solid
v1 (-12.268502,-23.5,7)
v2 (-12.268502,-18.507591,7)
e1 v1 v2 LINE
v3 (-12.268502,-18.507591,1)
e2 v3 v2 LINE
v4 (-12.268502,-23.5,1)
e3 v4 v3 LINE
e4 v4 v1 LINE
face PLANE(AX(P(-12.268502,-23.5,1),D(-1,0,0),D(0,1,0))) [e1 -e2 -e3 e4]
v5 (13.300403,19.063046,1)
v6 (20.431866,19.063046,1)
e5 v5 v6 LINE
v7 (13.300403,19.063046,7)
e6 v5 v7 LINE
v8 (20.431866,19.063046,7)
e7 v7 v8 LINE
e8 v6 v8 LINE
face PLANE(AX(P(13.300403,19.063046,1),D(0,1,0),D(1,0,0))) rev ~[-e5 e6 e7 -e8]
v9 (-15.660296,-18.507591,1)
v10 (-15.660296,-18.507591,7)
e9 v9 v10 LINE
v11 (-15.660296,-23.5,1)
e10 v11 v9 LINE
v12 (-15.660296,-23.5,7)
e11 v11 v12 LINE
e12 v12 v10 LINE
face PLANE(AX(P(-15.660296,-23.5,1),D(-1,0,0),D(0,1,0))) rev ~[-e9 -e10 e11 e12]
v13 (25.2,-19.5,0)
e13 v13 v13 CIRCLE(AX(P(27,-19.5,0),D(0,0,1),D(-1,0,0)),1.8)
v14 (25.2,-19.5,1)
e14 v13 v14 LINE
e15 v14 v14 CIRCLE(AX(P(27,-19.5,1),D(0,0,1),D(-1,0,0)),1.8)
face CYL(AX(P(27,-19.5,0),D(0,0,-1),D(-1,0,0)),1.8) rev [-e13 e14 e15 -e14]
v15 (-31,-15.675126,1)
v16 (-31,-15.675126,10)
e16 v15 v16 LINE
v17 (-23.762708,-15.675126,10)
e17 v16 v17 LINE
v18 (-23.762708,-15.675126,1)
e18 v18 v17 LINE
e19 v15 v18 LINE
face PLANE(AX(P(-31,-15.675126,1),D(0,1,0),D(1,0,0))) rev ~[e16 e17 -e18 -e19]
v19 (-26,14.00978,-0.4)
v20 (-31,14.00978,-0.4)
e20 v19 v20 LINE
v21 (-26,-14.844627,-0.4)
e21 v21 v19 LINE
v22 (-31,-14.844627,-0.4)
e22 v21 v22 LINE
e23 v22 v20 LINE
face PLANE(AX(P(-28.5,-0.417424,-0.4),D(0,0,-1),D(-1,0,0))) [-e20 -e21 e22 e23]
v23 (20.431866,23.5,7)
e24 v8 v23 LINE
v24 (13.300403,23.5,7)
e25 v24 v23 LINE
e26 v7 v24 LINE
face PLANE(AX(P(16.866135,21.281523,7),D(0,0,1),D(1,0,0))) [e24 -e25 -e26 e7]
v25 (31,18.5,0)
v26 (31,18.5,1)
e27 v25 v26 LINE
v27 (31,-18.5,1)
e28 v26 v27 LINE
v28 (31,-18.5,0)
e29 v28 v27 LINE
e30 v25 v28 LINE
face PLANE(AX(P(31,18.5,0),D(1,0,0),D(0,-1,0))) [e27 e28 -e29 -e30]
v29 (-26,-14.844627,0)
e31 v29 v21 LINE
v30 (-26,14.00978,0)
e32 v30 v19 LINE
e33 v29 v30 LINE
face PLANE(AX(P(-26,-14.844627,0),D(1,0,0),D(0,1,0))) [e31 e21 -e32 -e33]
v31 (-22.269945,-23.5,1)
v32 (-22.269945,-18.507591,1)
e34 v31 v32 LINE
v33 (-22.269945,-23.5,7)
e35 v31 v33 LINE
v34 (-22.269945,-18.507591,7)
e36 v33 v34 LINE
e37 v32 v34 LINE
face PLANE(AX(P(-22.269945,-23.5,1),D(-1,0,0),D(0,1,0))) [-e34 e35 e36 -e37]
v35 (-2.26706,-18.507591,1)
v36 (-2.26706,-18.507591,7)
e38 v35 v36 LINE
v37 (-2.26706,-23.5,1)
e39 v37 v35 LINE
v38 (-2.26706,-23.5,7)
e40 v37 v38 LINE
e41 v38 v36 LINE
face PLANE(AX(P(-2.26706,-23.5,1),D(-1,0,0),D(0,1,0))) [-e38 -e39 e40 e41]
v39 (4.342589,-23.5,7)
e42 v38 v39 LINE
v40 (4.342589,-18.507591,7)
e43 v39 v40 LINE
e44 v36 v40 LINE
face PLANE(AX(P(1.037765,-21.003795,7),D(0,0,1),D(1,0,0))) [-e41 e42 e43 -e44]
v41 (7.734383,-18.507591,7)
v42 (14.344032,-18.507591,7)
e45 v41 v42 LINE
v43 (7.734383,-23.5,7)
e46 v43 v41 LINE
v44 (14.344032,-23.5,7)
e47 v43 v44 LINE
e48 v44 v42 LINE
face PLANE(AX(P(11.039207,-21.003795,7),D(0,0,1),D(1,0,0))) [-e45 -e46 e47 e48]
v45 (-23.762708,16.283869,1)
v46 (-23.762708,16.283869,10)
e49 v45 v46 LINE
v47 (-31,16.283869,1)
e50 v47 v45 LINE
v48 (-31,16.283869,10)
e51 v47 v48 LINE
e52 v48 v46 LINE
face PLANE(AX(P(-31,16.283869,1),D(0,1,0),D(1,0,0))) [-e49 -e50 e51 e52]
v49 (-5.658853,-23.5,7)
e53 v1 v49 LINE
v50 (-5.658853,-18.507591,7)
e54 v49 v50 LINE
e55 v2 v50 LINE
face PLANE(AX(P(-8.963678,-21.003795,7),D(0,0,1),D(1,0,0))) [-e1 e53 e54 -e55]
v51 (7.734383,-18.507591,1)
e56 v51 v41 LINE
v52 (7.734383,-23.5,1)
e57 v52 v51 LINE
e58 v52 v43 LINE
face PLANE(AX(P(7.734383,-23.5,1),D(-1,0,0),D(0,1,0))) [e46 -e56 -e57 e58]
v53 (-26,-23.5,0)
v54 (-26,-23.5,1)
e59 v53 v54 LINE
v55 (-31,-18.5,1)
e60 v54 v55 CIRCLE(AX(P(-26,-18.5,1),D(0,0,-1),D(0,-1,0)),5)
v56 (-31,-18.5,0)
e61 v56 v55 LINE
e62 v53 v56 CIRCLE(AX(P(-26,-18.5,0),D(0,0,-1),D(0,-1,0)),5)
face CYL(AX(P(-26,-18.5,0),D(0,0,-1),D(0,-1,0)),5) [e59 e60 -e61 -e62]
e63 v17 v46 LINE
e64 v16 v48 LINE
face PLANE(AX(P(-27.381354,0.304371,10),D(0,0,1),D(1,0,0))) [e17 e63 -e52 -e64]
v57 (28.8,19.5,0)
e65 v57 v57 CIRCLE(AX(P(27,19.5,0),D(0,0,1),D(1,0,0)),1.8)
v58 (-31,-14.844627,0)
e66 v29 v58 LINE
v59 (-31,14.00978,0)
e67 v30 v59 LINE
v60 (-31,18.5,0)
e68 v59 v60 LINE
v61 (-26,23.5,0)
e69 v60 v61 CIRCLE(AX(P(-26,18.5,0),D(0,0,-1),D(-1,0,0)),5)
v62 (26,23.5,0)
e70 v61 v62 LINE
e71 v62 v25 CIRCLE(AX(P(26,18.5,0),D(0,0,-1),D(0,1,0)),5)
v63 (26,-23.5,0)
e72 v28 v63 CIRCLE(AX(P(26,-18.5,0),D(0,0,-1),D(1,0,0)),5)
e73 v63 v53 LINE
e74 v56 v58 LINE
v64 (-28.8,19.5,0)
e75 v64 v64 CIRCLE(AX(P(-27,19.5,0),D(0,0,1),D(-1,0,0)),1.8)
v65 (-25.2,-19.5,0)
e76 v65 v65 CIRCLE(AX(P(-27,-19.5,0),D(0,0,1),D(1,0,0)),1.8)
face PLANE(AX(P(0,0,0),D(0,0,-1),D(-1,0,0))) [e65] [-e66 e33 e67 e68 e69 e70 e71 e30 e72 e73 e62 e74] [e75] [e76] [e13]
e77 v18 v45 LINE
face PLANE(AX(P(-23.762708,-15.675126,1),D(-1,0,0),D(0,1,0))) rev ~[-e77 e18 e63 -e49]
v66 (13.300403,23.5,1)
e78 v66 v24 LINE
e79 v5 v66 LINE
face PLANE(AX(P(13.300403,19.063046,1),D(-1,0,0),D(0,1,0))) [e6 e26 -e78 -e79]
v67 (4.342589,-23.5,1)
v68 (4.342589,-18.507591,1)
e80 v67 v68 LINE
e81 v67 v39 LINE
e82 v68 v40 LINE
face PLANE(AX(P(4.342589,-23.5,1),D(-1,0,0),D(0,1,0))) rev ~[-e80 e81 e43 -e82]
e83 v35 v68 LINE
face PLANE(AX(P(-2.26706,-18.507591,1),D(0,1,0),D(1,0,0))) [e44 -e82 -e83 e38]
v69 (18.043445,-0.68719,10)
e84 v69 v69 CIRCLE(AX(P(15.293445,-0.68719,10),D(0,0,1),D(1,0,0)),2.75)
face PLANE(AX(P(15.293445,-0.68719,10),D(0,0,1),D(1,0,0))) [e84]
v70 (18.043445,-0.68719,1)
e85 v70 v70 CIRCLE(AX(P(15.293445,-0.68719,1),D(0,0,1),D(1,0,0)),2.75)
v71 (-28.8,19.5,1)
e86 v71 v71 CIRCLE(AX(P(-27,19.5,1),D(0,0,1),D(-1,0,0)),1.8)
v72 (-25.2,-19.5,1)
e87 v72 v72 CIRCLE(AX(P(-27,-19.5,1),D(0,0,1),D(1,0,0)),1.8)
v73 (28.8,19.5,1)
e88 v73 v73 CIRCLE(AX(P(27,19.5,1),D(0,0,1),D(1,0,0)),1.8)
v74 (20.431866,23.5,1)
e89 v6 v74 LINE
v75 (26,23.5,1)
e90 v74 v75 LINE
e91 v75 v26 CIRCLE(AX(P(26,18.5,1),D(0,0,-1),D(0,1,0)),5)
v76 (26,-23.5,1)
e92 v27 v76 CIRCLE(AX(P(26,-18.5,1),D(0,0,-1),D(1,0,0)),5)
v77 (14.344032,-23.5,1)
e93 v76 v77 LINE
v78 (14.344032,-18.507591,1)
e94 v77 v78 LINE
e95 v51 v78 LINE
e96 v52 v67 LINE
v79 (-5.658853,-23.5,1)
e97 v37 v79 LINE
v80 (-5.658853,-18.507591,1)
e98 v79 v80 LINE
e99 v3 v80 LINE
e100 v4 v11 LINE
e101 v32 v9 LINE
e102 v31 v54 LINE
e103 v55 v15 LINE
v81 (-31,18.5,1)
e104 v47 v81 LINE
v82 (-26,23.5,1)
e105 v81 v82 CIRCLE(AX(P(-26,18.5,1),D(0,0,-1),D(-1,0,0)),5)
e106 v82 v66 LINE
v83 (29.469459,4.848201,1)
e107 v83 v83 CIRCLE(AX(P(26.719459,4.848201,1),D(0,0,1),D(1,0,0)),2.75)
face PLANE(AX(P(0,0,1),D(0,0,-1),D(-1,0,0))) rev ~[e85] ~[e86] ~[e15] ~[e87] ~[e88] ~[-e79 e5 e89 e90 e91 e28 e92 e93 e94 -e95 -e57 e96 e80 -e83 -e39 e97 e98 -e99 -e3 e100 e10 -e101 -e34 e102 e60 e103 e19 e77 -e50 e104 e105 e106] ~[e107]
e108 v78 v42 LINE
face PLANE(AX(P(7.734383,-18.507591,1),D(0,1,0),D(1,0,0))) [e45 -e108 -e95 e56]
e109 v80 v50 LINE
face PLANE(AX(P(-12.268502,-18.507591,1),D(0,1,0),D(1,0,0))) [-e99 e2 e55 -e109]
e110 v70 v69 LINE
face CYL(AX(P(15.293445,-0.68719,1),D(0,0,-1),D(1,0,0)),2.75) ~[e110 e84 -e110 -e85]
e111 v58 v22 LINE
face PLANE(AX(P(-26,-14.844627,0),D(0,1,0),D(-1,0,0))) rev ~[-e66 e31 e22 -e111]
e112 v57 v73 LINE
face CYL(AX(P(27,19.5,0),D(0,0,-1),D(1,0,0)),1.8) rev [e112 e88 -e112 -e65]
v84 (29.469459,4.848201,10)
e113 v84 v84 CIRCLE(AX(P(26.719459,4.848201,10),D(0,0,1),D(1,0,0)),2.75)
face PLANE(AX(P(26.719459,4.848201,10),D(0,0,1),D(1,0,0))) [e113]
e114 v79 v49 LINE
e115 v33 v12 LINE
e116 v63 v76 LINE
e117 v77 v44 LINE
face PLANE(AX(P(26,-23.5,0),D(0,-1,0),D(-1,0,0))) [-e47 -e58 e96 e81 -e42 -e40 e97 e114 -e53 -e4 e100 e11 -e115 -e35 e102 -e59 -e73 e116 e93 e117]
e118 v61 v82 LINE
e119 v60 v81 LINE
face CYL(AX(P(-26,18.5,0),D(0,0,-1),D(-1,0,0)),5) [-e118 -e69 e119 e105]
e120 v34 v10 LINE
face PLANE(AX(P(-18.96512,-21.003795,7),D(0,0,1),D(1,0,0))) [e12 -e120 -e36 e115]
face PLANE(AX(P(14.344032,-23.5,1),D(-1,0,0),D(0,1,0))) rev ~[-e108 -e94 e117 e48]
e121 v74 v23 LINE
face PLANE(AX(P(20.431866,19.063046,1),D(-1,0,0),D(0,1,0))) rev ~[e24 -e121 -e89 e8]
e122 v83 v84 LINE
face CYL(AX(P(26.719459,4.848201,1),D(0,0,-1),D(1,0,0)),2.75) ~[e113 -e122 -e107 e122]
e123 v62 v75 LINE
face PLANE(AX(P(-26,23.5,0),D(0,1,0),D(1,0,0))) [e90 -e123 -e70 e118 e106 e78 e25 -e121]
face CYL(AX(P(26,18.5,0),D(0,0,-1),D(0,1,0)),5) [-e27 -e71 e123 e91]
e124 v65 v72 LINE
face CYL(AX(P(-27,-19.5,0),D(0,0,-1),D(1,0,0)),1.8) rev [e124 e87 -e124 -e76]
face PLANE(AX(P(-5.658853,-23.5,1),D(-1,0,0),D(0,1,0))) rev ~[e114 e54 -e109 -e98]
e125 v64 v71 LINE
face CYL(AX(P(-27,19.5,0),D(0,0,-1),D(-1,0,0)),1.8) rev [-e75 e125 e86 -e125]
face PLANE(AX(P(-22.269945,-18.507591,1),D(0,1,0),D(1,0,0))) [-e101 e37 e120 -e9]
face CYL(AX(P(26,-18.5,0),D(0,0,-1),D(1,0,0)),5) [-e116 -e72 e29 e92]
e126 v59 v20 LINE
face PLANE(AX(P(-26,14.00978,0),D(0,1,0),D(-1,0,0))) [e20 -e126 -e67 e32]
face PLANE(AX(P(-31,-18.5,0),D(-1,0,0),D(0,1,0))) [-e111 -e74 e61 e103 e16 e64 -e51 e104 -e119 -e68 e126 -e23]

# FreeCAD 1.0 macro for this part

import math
import FreeCAD as App
import Part
import Sketcher

V = App.Vector
Q = App.Units.Quantity


def add_polygon(sketch, points):
    """Adds a closed chain of lines whose ends are joined by coincident constraints."""
    first, n = sketch.GeometryCount, len(points)
    for a, b in zip(points, points[1:] + points[:1]):
        sketch.addGeometry(Part.LineSegment(App.Vector(*a, 0), App.Vector(*b, 0)), False)
    for i in range(n):
        sketch.addConstraint(Sketcher.Constraint("Coincident", first + i, 2, first + (i + 1) % n, 1))

doc = App.newDocument("Part")
body = doc.addObject("PartDesign::Body", "Body")

# Sketch on XY plane
sketch1 = body.newObject("Sketcher::SketchObject", "Sketch")
sketch1.AttachmentSupport = (doc.getObject("XY_Plane"), [""])
sketch1.MapMode = "FlatFace"
sketch1.addGeometry(Part.LineSegment(V(26, 23.5, 0), V(-26, 23.5, 0)), False)
sketch1.addGeometry(Part.ArcOfCircle(Part.Circle(V(-26, 18.5, 0), V(0, 0, 1), 5), math.radians(90), math.radians(180)), False)
sketch1.addGeometry(Part.LineSegment(V(-31, 18.5, 0), V(-31, -18.5, 0)), False)
sketch1.addGeometry(Part.ArcOfCircle(Part.Circle(V(-26, -18.5, 0), V(0, 0, 1), 5), math.radians(180), math.radians(270)), False)
sketch1.addGeometry(Part.LineSegment(V(-26, -23.5, 0), V(26, -23.5, 0)), False)
sketch1.addGeometry(Part.ArcOfCircle(Part.Circle(V(26, -18.5, 0), V(0, 0, 1), 5), math.radians(-90), math.radians(0)), False)
sketch1.addGeometry(Part.LineSegment(V(31, -18.5, 0), V(31, 18.5, 0)), False)
sketch1.addGeometry(Part.ArcOfCircle(Part.Circle(V(26, 18.5, 0), V(0, 0, 1), 5), math.radians(0), math.radians(90)), False)
sketch1.addGeometry(Part.Circle(V(27, -19.5, 0), V(0, 0, 1), 1.8), False)
sketch1.addGeometry(Part.Circle(V(-27, -19.5, 0), V(0, 0, 1), 1.8), False)
sketch1.addGeometry(Part.Circle(V(27, 19.5, 0), V(0, 0, 1), 1.8), False)
sketch1.addGeometry(Part.Circle(V(-27, 19.5, 0), V(0, 0, 1), 1.8), False)
sketch1.addConstraint(Sketcher.Constraint("Tangent", 0, 2, 1, 1))
sketch1.addConstraint(Sketcher.Constraint("Tangent", 1, 2, 2, 1))
sketch1.addConstraint(Sketcher.Constraint("Tangent", 2, 2, 3, 1))
sketch1.addConstraint(Sketcher.Constraint("Tangent", 3, 2, 4, 1))
sketch1.addConstraint(Sketcher.Constraint("Tangent", 4, 2, 5, 1))
sketch1.addConstraint(Sketcher.Constraint("Tangent", 5, 2, 6, 1))
sketch1.addConstraint(Sketcher.Constraint("Tangent", 6, 2, 7, 1))
sketch1.addConstraint(Sketcher.Constraint("Tangent", 7, 2, 0, 1))
sketch1.addConstraint(Sketcher.Constraint("Horizontal", 0))
sketch1.addConstraint(Sketcher.Constraint("Vertical", 2))
sketch1.addConstraint(Sketcher.Constraint("Horizontal", 4))
sketch1.addConstraint(Sketcher.Constraint("Vertical", 6))
sketch1.addConstraint(Sketcher.Constraint("Equal", 1, 3))
sketch1.addConstraint(Sketcher.Constraint("Equal", 3, 5))
sketch1.addConstraint(Sketcher.Constraint("Equal", 5, 7))
sketch1.addConstraint(Sketcher.Constraint("Equal", 8, 9))
sketch1.addConstraint(Sketcher.Constraint("Equal", 9, 10))
sketch1.addConstraint(Sketcher.Constraint("Equal", 10, 11))
sketch1.addConstraint(Sketcher.Constraint("Symmetric", 1, 3, 5, 3, -1, 1))
sketch1.addConstraint(Sketcher.Constraint("Symmetric", 9, 3, 10, 3, -1, 1))
sketch1.addConstraint(Sketcher.Constraint("Symmetric", 8, 3, 11, 3, -1, 1))
sketch1.addConstraint(Sketcher.Constraint("Symmetric", 8, 3, 9, 3, -2))
sketch1.addConstraint(Sketcher.Constraint("Radius", 1, Q("5 mm")))
sketch1.addConstraint(Sketcher.Constraint("Diameter", 8, Q("3.6 mm")))
sketch1.addConstraint(Sketcher.Constraint("DistanceX", 0, 2, 0, 1, Q("52 mm")))
sketch1.addConstraint(Sketcher.Constraint("DistanceY", 2, 2, 2, 1, Q("37 mm")))
sketch1.addConstraint(Sketcher.Constraint("DistanceX", -1, 1, 8, 3, Q("27 mm")))
sketch1.addConstraint(Sketcher.Constraint("DistanceY", 8, 3, 5, 3, Q("1 mm")))
pad1 = body.newObject("PartDesign::Pad", "Pad")
pad1.Profile = sketch1
pad1.Length = 1

# Sketch on XY plane
sketch2 = body.newObject("Sketcher::SketchObject", "Sketch001")
sketch2.AttachmentSupport = (doc.getObject("XY_Plane"), [""])
sketch2.MapMode = "FlatFace"
sketch2.AttachmentOffset = App.Placement(V(0, 0, 1), App.Rotation())
add_polygon(sketch2, [(-31, 16.283869), (-31, -15.675126), (-23.762708, -15.675126), (-23.762708, 16.283869)])  # lines 0-3
sketch2.addConstraint(Sketcher.Constraint("Vertical", 0))
sketch2.addConstraint(Sketcher.Constraint("Horizontal", 1))
sketch2.addConstraint(Sketcher.Constraint("Vertical", 2))
sketch2.addConstraint(Sketcher.Constraint("Horizontal", 3))
sketch2.addConstraint(Sketcher.Constraint("DistanceX", 0, 2, -1, 1, Q("31 mm")))
sketch2.addConstraint(Sketcher.Constraint("DistanceX", 1, 1, 1, 2, Q("7.237292 mm")))
sketch2.addConstraint(Sketcher.Constraint("DistanceY", 0, 2, 0, 1, Q("31.958995 mm")))
sketch2.addConstraint(Sketcher.Constraint("DistanceY", -1, 1, 2, 2, Q("16.283869 mm")))
pad2 = body.newObject("PartDesign::Pad", "Pad001")
pad2.Profile = sketch2
pad2.Length = 9

# Sketch on XY plane
sketch3 = body.newObject("Sketcher::SketchObject", "Sketch002")
sketch3.AttachmentSupport = (doc.getObject("XY_Plane"), [""])
sketch3.MapMode = "FlatFace"
sketch3.AttachmentOffset = App.Placement(V(0, 0, 1), App.Rotation())
add_polygon(sketch3, [(-22.269945, -18.507591), (-22.269945, -23.5), (-15.660296, -23.5), (-15.660296, -18.507591)])  # lines 0-3
add_polygon(sketch3, [(-12.268502, -18.507591), (-12.268502, -23.5), (-5.658853, -23.5), (-5.658853, -18.507591)])  # lines 4-7
add_polygon(sketch3, [(-2.26706, -18.507591), (-2.26706, -23.5), (4.342589, -23.5), (4.342589, -18.507591)])  # lines 8-11
add_polygon(sketch3, [(7.734383, -18.507591), (7.734383, -23.5), (14.344032, -23.5), (14.344032, -18.507591)])  # lines 12-15
add_polygon(sketch3, [(13.300403, 23.5), (13.300403, 19.063046), (20.431866, 19.063046), (20.431866, 23.5)])  # lines 16-19
sketch3.addConstraint(Sketcher.Constraint("Vertical", 0))
sketch3.addConstraint(Sketcher.Constraint("Horizontal", 1))
sketch3.addConstraint(Sketcher.Constraint("Vertical", 2))
sketch3.addConstraint(Sketcher.Constraint("Horizontal", 3))
sketch3.addConstraint(Sketcher.Constraint("Vertical", 4))
sketch3.addConstraint(Sketcher.Constraint("Horizontal", 5))
sketch3.addConstraint(Sketcher.Constraint("Vertical", 6))
sketch3.addConstraint(Sketcher.Constraint("Horizontal", 7))
sketch3.addConstraint(Sketcher.Constraint("Vertical", 8))
sketch3.addConstraint(Sketcher.Constraint("Horizontal", 9))
sketch3.addConstraint(Sketcher.Constraint("Vertical", 10))
sketch3.addConstraint(Sketcher.Constraint("Horizontal", 11))
sketch3.addConstraint(Sketcher.Constraint("Vertical", 12))
sketch3.addConstraint(Sketcher.Constraint("Horizontal", 13))
sketch3.addConstraint(Sketcher.Constraint("Vertical", 14))
sketch3.addConstraint(Sketcher.Constraint("Horizontal", 15))
sketch3.addConstraint(Sketcher.Constraint("Vertical", 16))
sketch3.addConstraint(Sketcher.Constraint("Horizontal", 17))
sketch3.addConstraint(Sketcher.Constraint("Vertical", 18))
sketch3.addConstraint(Sketcher.Constraint("Horizontal", 19))
sketch3.addConstraint(Sketcher.Constraint("Horizontal", 1, 2, 4, 2))
sketch3.addConstraint(Sketcher.Constraint("Horizontal", 3, 2, 6, 2))
sketch3.addConstraint(Sketcher.Constraint("Horizontal", 5, 2, 8, 2))
sketch3.addConstraint(Sketcher.Constraint("Horizontal", 7, 2, 10, 2))
sketch3.addConstraint(Sketcher.Constraint("Horizontal", 9, 2, 12, 2))
sketch3.addConstraint(Sketcher.Constraint("Horizontal", 11, 2, 14, 2))
sketch3.addConstraint(Sketcher.Constraint("Equal", 3, 5))
sketch3.addConstraint(Sketcher.Constraint("Equal", 7, 9))
sketch3.addConstraint(Sketcher.Constraint("Equal", 11, 13))
sketch3.addConstraint(Sketcher.Constraint("DistanceY", 0, 2, -1, 1, Q("23.5 mm")))
sketch3.addConstraint(Sketcher.Constraint("DistanceY", -1, 1, 18, 2, Q("23.5 mm")))
sketch3.addConstraint(Sketcher.Constraint("DistanceX", 1, 1, 1, 2, Q("6.609649 mm")))
sketch3.addConstraint(Sketcher.Constraint("DistanceY", 0, 2, 0, 1, Q("4.992409 mm")))
sketch3.addConstraint(Sketcher.Constraint("DistanceX", 17, 1, 17, 2, Q("7.131463 mm")))
sketch3.addConstraint(Sketcher.Constraint("DistanceY", 16, 2, 16, 1, Q("4.436954 mm")))
sketch3.addConstraint(Sketcher.Constraint("DistanceX", 8, 2, -1, 1, Q("2.26706 mm")))
sketch3.addConstraint(Sketcher.Constraint("DistanceX", -1, 1, 13, 2, Q("14.344032 mm")))
sketch3.addConstraint(Sketcher.Constraint("DistanceX", 0, 2, 5, 2, Q("16.611091 mm")))
sketch3.addConstraint(Sketcher.Constraint("DistanceX", 4, 2, 9, 2, Q("16.611091 mm")))
sketch3.addConstraint(Sketcher.Constraint("DistanceX", 16, 2, 14, 2, Q("1.043629 mm")))
pad3 = body.newObject("PartDesign::Pad", "Pad002")
pad3.Profile = sketch3
pad3.Length = 6

# Sketch on XY plane
sketch4 = body.newObject("Sketcher::SketchObject", "Sketch003")
sketch4.AttachmentSupport = (doc.getObject("XY_Plane"), [""])
sketch4.MapMode = "FlatFace"
sketch4.AttachmentOffset = App.Placement(V(0, 0, 1), App.Rotation())
sketch4.addGeometry(Part.Circle(V(26.719459, 4.848201, 0), V(0, 0, 1), 2.75), False)
sketch4.addGeometry(Part.Circle(V(15.293445, -0.68719, 0), V(0, 0, 1), 2.75), False)
sketch4.addConstraint(Sketcher.Constraint("Equal", 0, 1))
sketch4.addConstraint(Sketcher.Constraint("Diameter", 0, Q("5.5 mm")))
sketch4.addConstraint(Sketcher.Constraint("DistanceY", -1, 1, 0, 3, Q("4.848201 mm")))
sketch4.addConstraint(Sketcher.Constraint("DistanceX", -1, 1, 0, 3, Q("26.719459 mm")))
sketch4.addConstraint(Sketcher.Constraint("DistanceY", 1, 3, -1, 1, Q("0.68719 mm")))
sketch4.addConstraint(Sketcher.Constraint("DistanceX", -1, 1, 1, 3, Q("15.293445 mm")))
pad4 = body.newObject("PartDesign::Pad", "Pad003")
pad4.Profile = sketch4
pad4.Length = 9

# Sketch on XY plane
sketch5 = body.newObject("Sketcher::SketchObject", "Sketch004")
sketch5.AttachmentSupport = (doc.getObject("XY_Plane"), [""])
sketch5.MapMode = "FlatFace"
add_polygon(sketch5, [(-26, 14.00978), (-26, -14.844627), (-31, -14.844627), (-31, 14.00978)])  # lines 0-3
sketch5.addConstraint(Sketcher.Constraint("Vertical", 0))
sketch5.addConstraint(Sketcher.Constraint("Horizontal", 1))
sketch5.addConstraint(Sketcher.Constraint("Vertical", 2))
sketch5.addConstraint(Sketcher.Constraint("Horizontal", 3))
sketch5.addConstraint(Sketcher.Constraint("DistanceX", 1, 2, 1, 1, Q("5 mm")))
sketch5.addConstraint(Sketcher.Constraint("DistanceX", 0, 2, -1, 1, Q("26 mm")))
sketch5.addConstraint(Sketcher.Constraint("DistanceY", 0, 2, 0, 1, Q("28.854407 mm")))
sketch5.addConstraint(Sketcher.Constraint("DistanceY", -1, 1, 2, 2, Q("14.00978 mm")))
pad5 = body.newObject("PartDesign::Pad", "Pad004")
pad5.Profile = sketch5
pad5.Length = 0.4
pad5.Reversed = True

doc.recompute()
